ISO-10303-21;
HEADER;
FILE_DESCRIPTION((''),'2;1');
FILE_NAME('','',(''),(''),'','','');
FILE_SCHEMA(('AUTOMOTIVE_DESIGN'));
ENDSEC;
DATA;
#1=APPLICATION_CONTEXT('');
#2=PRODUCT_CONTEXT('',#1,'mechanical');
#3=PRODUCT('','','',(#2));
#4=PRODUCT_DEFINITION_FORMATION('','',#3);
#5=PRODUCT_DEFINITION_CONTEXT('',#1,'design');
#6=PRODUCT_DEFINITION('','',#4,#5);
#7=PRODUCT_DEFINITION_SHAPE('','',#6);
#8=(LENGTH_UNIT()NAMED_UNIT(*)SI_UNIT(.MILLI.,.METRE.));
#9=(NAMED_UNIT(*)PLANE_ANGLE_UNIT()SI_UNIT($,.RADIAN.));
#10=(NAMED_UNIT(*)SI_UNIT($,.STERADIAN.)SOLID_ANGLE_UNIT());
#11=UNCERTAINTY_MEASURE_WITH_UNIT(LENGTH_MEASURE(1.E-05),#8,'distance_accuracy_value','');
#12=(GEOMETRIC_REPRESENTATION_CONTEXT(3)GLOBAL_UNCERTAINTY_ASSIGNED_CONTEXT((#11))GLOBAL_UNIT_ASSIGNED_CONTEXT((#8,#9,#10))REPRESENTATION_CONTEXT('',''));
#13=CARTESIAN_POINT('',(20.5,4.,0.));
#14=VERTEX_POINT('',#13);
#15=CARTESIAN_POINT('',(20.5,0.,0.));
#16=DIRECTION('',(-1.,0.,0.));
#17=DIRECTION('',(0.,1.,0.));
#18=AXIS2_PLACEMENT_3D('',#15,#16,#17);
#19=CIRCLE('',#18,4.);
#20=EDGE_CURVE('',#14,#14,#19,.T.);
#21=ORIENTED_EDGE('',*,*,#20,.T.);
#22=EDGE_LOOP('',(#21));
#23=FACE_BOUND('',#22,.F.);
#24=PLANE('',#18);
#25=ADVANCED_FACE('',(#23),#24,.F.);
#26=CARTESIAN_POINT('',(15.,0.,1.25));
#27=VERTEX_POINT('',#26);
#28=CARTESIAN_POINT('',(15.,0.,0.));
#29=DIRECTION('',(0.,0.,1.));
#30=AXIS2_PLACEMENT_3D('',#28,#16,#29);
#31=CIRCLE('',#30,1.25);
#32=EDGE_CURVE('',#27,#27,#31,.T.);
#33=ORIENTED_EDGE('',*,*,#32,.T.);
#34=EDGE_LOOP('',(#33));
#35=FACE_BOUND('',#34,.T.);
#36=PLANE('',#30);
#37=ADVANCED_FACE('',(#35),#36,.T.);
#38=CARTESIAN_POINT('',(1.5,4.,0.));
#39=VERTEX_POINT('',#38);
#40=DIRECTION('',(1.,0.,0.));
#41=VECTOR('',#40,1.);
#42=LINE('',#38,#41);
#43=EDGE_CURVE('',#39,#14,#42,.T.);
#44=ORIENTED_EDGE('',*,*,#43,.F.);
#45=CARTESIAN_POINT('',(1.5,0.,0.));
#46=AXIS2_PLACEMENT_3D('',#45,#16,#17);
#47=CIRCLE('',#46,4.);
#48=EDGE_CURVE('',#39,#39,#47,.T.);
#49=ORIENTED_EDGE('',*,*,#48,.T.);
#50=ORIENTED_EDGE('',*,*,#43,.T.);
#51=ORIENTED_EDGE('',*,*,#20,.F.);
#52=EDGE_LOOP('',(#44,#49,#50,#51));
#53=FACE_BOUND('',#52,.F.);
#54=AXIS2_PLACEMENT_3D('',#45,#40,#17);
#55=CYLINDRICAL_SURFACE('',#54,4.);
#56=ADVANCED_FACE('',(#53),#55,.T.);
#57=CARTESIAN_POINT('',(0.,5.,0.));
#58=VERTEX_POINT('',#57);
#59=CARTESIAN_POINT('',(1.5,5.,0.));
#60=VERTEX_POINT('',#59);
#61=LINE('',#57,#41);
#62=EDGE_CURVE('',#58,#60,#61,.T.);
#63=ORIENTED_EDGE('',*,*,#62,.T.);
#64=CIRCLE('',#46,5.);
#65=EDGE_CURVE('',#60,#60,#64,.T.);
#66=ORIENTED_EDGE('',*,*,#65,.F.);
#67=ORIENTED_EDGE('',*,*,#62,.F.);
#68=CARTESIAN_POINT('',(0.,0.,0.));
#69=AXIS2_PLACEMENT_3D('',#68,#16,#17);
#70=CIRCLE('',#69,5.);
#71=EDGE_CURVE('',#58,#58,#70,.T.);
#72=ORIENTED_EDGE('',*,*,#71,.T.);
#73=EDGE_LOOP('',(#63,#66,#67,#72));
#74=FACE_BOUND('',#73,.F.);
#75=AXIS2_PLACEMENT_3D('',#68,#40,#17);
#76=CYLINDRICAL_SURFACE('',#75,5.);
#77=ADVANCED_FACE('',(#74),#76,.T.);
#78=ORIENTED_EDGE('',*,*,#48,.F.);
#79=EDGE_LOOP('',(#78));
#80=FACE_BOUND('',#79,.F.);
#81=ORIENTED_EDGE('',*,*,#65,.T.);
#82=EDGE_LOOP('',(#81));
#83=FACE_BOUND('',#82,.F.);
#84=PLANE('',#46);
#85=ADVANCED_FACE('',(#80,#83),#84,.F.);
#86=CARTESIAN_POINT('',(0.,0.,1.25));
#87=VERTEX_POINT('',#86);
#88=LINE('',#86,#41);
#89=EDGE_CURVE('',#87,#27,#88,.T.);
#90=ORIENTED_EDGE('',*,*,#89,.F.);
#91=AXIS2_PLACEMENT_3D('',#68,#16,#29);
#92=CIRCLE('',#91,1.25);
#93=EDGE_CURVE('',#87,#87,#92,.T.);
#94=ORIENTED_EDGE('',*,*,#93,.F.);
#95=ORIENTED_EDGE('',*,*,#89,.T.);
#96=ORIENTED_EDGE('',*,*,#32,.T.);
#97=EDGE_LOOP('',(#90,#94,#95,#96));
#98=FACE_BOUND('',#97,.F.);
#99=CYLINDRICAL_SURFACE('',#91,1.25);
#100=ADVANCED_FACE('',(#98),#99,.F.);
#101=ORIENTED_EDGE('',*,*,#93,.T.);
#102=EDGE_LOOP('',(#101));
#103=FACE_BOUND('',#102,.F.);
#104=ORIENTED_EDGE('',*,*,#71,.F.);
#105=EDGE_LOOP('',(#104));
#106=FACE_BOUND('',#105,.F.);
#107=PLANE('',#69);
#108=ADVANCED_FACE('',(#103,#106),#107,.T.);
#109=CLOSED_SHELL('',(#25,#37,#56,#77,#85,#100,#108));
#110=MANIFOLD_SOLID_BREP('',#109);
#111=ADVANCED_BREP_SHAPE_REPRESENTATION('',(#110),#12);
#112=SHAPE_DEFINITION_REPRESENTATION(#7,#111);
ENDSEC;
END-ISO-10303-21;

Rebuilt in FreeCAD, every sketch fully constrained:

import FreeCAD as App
import Part
import Sketcher

V = App.Vector
Q = App.Units.Quantity


def add_polygon(sketch, points):
    """Adds a closed chain of lines whose ends are joined by coincident constraints."""
    first, n = sketch.GeometryCount, len(points)
    for a, b in zip(points, points[1:] + points[:1]):
        sketch.addGeometry(Part.LineSegment(App.Vector(*a, 0), App.Vector(*b, 0)), False)
    for i in range(n):
        sketch.addConstraint(Sketcher.Constraint("Coincident", first + i, 2, first + (i + 1) % n, 1))

doc = App.newDocument("Part")
body = doc.addObject("PartDesign::Body", "Body")

# Sketch on XY plane
sketch1 = body.newObject("Sketcher::SketchObject", "Sketch")
sketch1.AttachmentSupport = (doc.getObject("XY_Plane"), [""])
sketch1.MapMode = "FlatFace"
add_polygon(sketch1, [(0, 5), (0, 0), (20.5, 0), (20.5, 4), (1.5, 4), (1.5, 5)])  # lines 0-5
sketch1.addConstraint(Sketcher.Constraint("Vertical", 0))
sketch1.addConstraint(Sketcher.Constraint("Horizontal", 1))
sketch1.addConstraint(Sketcher.Constraint("Vertical", 2))
sketch1.addConstraint(Sketcher.Constraint("Horizontal", 3))
sketch1.addConstraint(Sketcher.Constraint("Vertical", 4))
sketch1.addConstraint(Sketcher.Constraint("Horizontal", 5))
sketch1.addConstraint(Sketcher.Constraint("Coincident", 0, 2, -1, 1))
sketch1.addConstraint(Sketcher.Constraint("DistanceY", 0, 2, 0, 1, Q("5 mm")))
sketch1.addConstraint(Sketcher.Constraint("DistanceY", 2, 1, 2, 2, Q("4 mm")))
sketch1.addConstraint(Sketcher.Constraint("DistanceX", 1, 1, 1, 2, Q("20.5 mm")))
sketch1.addConstraint(Sketcher.Constraint("DistanceX", 5, 2, 5, 1, Q("1.5 mm")))
revolution = body.newObject("PartDesign::Revolution", "Revolution")
revolution.Profile = sketch1
revolution.ReferenceAxis = (sketch1, ["H_Axis"])
revolution.Angle = 360

# Sketch on YZ plane
sketch2 = body.newObject("Sketcher::SketchObject", "Sketch001")
sketch2.AttachmentSupport = (doc.getObject("YZ_Plane"), [""])
sketch2.MapMode = "FlatFace"
sketch2.addGeometry(Part.Circle(V(0, 0, 0), V(0, 0, 1), 1.25), False)
sketch2.addConstraint(Sketcher.Constraint("Coincident", 0, 3, -1, 1))
sketch2.addConstraint(Sketcher.Constraint("Diameter", 0, Q("2.5 mm")))
pocket1 = body.newObject("PartDesign::Pocket", "Pocket")
pocket1.Profile = sketch2
pocket1.Length = 15
pocket1.Reversed = True

doc.recompute()
